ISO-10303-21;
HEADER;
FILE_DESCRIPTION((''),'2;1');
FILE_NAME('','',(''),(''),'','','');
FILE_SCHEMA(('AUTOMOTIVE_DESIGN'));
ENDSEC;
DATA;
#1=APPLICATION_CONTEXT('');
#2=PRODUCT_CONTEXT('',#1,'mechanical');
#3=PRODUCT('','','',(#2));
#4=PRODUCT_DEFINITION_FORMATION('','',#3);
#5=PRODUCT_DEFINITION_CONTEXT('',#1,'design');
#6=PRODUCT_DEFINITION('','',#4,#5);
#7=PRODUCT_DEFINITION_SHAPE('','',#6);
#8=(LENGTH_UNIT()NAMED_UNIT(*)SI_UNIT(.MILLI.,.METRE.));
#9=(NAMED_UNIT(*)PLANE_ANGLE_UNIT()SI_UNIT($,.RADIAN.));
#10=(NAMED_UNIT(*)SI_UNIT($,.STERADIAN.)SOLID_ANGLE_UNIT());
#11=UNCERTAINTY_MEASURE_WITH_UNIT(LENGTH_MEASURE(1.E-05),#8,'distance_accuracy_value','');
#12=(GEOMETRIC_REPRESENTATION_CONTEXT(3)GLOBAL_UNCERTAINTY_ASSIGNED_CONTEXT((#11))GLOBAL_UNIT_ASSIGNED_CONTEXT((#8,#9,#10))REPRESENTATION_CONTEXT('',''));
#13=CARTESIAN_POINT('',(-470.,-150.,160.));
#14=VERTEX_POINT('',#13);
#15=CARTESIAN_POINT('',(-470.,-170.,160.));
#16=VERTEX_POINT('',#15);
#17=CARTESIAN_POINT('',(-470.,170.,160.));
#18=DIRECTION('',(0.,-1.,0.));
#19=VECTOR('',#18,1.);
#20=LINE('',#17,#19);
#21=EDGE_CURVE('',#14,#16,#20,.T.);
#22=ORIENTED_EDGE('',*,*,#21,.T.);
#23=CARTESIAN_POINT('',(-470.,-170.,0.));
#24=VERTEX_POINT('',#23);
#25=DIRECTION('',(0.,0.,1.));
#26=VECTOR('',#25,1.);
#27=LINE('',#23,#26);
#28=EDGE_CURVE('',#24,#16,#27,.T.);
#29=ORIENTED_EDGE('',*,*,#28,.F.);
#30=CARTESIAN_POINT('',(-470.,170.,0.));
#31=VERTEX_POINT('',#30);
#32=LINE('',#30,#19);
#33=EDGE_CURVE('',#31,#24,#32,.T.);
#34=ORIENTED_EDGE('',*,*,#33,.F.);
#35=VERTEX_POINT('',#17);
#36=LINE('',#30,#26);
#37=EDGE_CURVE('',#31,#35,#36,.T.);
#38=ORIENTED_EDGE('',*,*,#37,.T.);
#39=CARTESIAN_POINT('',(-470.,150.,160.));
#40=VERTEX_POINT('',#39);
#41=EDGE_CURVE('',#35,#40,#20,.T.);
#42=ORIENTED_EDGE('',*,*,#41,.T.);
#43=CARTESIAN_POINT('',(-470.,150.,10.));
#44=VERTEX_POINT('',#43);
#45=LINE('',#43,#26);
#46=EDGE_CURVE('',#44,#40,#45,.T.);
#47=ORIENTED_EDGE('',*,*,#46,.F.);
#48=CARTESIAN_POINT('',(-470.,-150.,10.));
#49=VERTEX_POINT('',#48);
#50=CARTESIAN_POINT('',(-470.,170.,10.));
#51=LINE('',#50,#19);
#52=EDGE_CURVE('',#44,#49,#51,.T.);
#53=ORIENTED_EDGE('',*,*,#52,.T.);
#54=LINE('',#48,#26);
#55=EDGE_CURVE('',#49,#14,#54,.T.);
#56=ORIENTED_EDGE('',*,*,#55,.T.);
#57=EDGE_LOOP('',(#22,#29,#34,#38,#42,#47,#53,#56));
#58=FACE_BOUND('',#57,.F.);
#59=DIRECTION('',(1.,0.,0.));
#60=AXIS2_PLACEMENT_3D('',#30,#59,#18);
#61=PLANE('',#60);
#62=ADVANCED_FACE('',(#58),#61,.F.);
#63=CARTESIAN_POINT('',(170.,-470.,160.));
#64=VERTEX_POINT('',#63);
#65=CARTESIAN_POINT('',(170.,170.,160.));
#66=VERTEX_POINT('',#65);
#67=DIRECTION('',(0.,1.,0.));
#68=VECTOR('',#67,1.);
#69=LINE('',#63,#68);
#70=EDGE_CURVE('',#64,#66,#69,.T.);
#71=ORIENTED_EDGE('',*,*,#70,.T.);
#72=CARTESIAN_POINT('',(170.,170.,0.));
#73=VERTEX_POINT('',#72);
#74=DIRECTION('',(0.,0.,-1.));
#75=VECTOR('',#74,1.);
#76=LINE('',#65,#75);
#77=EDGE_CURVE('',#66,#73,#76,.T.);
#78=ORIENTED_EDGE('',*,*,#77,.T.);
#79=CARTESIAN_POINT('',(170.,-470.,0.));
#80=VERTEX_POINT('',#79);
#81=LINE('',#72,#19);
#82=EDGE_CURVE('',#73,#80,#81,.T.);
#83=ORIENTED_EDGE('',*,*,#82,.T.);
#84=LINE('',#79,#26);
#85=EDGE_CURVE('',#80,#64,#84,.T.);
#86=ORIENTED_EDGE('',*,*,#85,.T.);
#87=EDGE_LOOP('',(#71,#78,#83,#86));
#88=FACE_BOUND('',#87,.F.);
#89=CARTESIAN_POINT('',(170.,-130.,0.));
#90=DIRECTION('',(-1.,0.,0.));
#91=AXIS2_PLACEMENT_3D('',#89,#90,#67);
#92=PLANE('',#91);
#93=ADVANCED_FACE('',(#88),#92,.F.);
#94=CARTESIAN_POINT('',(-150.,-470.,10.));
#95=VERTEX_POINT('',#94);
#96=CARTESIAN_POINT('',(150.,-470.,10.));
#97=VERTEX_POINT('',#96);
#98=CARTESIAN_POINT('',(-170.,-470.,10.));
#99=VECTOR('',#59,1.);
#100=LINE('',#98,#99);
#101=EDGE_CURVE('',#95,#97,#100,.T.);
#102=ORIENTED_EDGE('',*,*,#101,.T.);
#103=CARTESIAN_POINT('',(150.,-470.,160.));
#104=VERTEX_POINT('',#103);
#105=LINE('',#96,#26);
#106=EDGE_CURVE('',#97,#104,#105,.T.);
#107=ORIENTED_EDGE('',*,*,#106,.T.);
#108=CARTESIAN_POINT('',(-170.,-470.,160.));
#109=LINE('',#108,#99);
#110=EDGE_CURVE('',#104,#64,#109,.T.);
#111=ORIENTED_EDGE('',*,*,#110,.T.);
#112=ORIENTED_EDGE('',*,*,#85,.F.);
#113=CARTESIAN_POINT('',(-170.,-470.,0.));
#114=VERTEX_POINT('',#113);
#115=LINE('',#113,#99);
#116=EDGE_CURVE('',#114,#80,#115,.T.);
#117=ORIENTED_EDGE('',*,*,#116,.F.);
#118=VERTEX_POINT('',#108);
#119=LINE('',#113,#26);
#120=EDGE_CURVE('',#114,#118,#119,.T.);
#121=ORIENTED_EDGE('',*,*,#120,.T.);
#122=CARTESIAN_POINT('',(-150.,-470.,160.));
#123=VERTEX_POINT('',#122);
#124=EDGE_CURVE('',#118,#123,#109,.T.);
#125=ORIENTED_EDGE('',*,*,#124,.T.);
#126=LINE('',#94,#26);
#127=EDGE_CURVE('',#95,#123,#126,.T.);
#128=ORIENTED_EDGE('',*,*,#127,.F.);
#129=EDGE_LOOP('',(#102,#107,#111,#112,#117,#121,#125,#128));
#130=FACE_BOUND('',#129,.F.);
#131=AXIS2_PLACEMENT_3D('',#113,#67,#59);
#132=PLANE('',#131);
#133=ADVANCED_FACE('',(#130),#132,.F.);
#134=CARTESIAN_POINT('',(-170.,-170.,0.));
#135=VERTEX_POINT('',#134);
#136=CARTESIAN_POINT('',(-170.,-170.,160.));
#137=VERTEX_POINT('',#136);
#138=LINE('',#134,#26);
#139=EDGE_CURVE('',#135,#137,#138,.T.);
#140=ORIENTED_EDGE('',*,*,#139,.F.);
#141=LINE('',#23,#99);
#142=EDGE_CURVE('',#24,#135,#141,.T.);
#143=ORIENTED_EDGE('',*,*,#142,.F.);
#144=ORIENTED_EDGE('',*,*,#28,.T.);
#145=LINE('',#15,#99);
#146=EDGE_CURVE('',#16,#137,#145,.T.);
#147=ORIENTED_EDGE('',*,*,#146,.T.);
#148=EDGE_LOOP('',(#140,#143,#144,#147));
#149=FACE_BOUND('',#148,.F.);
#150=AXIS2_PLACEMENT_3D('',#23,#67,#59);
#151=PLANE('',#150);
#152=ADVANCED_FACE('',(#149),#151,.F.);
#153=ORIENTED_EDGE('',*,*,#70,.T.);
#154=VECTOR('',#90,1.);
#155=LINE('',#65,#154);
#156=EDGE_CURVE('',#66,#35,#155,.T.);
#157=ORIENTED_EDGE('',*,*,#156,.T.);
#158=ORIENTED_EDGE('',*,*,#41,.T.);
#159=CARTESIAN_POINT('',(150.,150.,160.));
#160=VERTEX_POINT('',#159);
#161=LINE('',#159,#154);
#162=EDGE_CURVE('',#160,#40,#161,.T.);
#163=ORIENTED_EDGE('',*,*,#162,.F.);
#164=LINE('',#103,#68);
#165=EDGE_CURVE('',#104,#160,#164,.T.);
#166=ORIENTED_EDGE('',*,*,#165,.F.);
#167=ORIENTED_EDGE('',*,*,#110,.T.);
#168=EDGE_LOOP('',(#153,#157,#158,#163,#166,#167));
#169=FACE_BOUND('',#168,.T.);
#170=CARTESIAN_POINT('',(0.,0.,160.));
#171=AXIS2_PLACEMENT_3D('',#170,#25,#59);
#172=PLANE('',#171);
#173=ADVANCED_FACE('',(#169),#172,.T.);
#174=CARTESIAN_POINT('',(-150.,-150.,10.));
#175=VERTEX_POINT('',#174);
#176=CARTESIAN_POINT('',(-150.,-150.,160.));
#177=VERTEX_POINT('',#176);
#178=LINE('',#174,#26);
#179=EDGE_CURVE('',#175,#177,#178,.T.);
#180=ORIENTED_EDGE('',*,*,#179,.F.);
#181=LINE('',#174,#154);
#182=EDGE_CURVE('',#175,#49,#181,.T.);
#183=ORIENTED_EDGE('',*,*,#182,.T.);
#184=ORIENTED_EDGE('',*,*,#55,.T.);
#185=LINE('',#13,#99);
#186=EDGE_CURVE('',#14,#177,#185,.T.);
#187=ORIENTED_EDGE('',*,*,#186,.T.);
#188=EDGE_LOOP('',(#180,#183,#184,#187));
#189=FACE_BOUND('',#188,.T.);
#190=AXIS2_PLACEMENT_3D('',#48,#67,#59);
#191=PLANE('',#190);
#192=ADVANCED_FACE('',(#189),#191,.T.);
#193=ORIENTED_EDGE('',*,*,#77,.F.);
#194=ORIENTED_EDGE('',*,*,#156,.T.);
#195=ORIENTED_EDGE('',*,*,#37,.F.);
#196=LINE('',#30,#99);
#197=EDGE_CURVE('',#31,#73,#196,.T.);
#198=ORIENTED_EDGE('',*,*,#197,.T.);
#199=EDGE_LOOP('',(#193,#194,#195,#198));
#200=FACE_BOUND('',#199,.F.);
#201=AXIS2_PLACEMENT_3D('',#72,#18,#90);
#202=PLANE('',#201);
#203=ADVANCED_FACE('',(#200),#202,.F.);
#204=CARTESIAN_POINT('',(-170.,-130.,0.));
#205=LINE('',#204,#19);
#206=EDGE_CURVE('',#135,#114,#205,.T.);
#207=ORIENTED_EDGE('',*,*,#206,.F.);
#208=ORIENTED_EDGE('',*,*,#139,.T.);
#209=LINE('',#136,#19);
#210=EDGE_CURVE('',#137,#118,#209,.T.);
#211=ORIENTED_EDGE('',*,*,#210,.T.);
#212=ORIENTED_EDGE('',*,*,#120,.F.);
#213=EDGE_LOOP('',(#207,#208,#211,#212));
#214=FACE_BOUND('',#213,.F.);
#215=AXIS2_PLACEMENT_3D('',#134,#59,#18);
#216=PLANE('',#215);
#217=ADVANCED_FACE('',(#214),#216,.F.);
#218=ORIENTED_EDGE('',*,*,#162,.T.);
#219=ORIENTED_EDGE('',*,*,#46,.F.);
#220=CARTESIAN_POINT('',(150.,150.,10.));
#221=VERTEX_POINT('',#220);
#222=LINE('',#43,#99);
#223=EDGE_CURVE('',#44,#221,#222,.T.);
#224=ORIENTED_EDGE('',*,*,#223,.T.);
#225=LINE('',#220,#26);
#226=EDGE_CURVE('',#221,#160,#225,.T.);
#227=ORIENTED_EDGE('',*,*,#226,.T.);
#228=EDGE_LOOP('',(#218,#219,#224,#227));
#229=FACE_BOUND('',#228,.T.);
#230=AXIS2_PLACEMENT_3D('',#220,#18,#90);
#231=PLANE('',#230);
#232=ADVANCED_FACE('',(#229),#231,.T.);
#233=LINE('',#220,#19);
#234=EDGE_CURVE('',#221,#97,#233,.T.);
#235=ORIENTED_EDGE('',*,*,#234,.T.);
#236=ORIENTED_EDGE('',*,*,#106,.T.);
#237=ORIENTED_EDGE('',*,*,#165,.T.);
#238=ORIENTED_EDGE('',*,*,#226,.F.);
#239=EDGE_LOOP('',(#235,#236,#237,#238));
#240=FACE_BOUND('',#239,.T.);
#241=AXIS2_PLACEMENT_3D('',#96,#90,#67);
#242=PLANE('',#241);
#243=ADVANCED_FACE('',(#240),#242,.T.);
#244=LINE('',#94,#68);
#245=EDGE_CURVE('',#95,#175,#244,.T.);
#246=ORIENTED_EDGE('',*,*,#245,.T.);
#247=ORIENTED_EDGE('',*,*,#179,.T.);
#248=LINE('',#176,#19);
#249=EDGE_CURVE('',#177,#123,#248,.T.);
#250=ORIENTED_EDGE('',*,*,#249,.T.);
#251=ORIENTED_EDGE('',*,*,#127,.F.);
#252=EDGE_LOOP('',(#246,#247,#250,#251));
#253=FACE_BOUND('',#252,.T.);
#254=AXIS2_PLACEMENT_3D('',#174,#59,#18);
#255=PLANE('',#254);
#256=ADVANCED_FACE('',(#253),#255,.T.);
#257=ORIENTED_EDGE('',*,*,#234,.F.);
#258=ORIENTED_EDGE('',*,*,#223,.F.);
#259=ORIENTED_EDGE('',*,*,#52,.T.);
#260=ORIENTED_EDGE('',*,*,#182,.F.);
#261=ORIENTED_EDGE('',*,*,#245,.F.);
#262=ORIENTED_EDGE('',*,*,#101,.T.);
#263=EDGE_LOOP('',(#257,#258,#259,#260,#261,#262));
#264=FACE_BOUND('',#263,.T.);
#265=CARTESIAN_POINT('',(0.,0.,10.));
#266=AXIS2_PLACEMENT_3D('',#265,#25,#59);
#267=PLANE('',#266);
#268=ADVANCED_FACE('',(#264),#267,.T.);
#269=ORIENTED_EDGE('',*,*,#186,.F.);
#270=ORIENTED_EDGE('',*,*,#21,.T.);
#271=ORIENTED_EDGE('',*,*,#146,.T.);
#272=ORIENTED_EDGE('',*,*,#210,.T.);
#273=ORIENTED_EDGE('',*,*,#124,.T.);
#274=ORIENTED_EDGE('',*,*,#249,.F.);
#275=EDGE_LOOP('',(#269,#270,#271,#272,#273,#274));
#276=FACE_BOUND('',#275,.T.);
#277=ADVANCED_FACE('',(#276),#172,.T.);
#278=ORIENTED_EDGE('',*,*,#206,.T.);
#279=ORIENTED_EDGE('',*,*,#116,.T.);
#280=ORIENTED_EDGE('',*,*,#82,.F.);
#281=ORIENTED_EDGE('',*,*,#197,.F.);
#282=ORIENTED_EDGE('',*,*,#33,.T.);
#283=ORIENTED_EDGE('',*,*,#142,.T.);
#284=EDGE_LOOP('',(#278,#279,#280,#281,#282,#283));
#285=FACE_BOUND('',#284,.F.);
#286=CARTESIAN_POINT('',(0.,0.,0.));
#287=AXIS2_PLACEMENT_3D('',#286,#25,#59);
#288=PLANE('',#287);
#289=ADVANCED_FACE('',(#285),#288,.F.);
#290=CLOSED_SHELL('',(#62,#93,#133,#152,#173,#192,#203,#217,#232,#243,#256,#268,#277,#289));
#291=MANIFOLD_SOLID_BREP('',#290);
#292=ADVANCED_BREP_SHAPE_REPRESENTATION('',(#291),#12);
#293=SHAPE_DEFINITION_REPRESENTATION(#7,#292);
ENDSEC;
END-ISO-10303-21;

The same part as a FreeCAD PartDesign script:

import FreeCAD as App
import Part
import Sketcher


def add_polygon(sketch, points):
    """Adds a closed chain of lines whose ends are joined by coincident constraints."""
    first, n = sketch.GeometryCount, len(points)
    for a, b in zip(points, points[1:] + points[:1]):
        sketch.addGeometry(Part.LineSegment(App.Vector(*a, 0), App.Vector(*b, 0)), False)
    for i in range(n):
        sketch.addConstraint(Sketcher.Constraint("Coincident", first + i, 2, first + (i + 1) % n, 1))

doc = App.newDocument("Part")
body = doc.addObject("PartDesign::Body", "Body")

# Sketch on XY plane
sketch1 = body.newObject("Sketcher::SketchObject", "Sketch")
sketch1.AttachmentSupport = (doc.getObject("XY_Plane"), [""])
sketch1.MapMode = "FlatFace"
add_polygon(sketch1, [(170, 170), (-470, 170), (-470, -170), (-170, -170), (-170, -470), (170, -470)])  # lines 0-5
sketch1.addConstraint([
    Sketcher.Constraint("Horizontal", 0),
    Sketcher.Constraint("Vertical", 1),
    Sketcher.Constraint("Horizontal", 2),
    Sketcher.Constraint("Vertical", 3),
    Sketcher.Constraint("Horizontal", 4),
    Sketcher.Constraint("Vertical", 5),
    Sketcher.Constraint("Symmetric", 2, 2, 5, 2, -1, 1),
    Sketcher.Constraint("Equal", 4, 1),
    Sketcher.Constraint("Equal", 2, 3),
    Sketcher.Constraint("DistanceX", 2, 1, 2, 2, 300.0),
    Sketcher.Constraint("DistanceX", 0, 2, 0, 1, 640.0),
])
pad1 = body.newObject("PartDesign::Pad", "Pad")
pad1.Profile = sketch1
pad1.Length = 10

# Sketch on XY plane
sketch2 = body.newObject("Sketcher::SketchObject", "Sketch001")
sketch2.AttachmentSupport = (doc.getObject("XY_Plane"), [""])
sketch2.MapMode = "FlatFace"
sketch2.AttachmentOffset = App.Placement(App.Vector(0, 0, 10), App.Rotation())
add_polygon(sketch2, [(170, -470), (170, 170), (-470, 170), (-470, 150), (150, 150), (150, -470)])  # lines 0-5
add_polygon(sketch2, [(-150, -150), (-470, -150), (-470, -170), (-170, -170), (-170, -470), (-150, -470)])  # lines 6-11
sketch2.addConstraint([
    Sketcher.Constraint("Vertical", 0),
    Sketcher.Constraint("Horizontal", 1),
    Sketcher.Constraint("Vertical", 2),
    Sketcher.Constraint("Horizontal", 3),
    Sketcher.Constraint("Vertical", 4),
    Sketcher.Constraint("Horizontal", 5),
    Sketcher.Constraint("Horizontal", 6),
    Sketcher.Constraint("Vertical", 7),
    Sketcher.Constraint("Horizontal", 8),
    Sketcher.Constraint("Vertical", 9),
    Sketcher.Constraint("Horizontal", 10),
    Sketcher.Constraint("Vertical", 11),
    Sketcher.Constraint("Symmetric", 0, 2, 8, 2, -1, 1),
    Sketcher.Constraint("Symmetric", 3, 2, 11, 2, -1, 1),
    Sketcher.Constraint("Horizontal", 5, 2, 9, 2),
    Sketcher.Constraint("Vertical", 2, 2, 6, 2),
    Sketcher.Constraint("Equal", 1, 0),
    Sketcher.Constraint("Equal", 10, 2),
    Sketcher.Constraint("Equal", 8, 9),
    Sketcher.Constraint("DistanceX", 5, 1, 5, 2, 20.0),
    Sketcher.Constraint("DistanceX", 1, 2, 1, 1, 640.0),
    Sketcher.Constraint("DistanceX", 6, 2, 6, 1, 320.0),
])
pad2 = body.newObject("PartDesign::Pad", "Pad001")
pad2.Profile = sketch2
pad2.Length = 150

doc.recompute()
